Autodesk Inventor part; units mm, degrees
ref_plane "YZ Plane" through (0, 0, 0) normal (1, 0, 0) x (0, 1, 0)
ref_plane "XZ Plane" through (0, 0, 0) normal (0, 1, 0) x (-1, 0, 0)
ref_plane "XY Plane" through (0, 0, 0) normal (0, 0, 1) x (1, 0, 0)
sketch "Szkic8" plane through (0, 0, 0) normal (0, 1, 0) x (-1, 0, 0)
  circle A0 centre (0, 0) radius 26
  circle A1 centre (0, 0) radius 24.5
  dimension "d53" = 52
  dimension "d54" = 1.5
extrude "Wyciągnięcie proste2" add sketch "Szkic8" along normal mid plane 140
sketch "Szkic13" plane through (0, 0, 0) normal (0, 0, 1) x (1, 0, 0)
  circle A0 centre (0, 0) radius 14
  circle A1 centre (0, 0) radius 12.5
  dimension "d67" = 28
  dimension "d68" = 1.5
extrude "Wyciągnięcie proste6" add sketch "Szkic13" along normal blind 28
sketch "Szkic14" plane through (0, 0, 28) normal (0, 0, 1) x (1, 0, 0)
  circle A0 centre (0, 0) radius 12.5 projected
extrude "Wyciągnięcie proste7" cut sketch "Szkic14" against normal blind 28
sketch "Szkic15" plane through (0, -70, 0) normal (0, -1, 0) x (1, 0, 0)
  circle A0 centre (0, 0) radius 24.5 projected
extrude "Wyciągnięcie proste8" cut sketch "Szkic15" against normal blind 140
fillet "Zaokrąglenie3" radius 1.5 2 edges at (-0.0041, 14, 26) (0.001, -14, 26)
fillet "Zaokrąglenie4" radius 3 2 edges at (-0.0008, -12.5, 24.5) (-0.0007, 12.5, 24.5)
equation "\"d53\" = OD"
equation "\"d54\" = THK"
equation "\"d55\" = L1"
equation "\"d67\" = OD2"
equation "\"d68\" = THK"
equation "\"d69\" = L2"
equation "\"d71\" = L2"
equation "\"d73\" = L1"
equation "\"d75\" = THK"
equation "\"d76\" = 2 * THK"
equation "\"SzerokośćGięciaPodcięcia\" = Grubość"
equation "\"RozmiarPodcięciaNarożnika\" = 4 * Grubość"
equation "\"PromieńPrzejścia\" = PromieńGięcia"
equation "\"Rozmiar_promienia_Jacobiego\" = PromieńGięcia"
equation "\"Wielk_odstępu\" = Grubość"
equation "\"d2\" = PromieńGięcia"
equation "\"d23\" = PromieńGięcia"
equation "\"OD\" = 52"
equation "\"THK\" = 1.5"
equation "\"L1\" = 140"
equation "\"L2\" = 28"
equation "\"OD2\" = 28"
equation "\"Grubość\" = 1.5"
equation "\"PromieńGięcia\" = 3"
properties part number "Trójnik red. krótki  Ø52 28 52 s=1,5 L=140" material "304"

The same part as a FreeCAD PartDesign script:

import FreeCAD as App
import Part
import Sketcher
Q = App.Units.Quantity


def edges_at(feature, points):
    """Names of the edges that pass closest to the given points."""
    edges = feature.Shape.Edges
    near = lambda p: min(range(len(edges)), key=lambda i: edges[i].distToShape(Part.Vertex(*p))[0])
    return sorted({f"Edge{near(p) + 1}" for p in points})

doc = App.newDocument("Part")
body = doc.addObject("PartDesign::Body", "Body")

sketch1 = body.newObject("Sketcher::SketchObject", "Sketch")
sketch1.AttachmentSupport = (doc.getObject("XZ_Plane"), [""])
sketch1.MapMode = "FlatFace"
sketch1.addGeometry(Part.Circle(App.Vector(0, 0, 0), App.Vector(0, 0, 1), 26), False)
sketch1.addGeometry(Part.Circle(App.Vector(0, 0, 0), App.Vector(0, 0, 1), 24), False)
sketch1.addConstraint(Sketcher.Constraint("Coincident", 0, 3, -1, 1))
sketch1.addConstraint(Sketcher.Constraint("Coincident", 1, 3, -1, 1))
sketch1.addConstraint(Sketcher.Constraint("Diameter", 0, Q("52 mm")))
sketch1.addConstraint(Sketcher.Constraint("Diameter", 1, Q("49 mm")))
pad1 = body.newObject("PartDesign::Pad", "Pad")
pad1.Profile = sketch1
pad1.Length = 140
pad1.Midplane = True

sketch2 = body.newObject("Sketcher::SketchObject", "Sketch001")
sketch2.AttachmentSupport = (doc.getObject("XY_Plane"), [""])
sketch2.MapMode = "FlatFace"
sketch2.addGeometry(Part.Circle(App.Vector(0, 0, 0), App.Vector(0, 0, 1), 14), False)
sketch2.addGeometry(Part.Circle(App.Vector(0, 0, 0), App.Vector(0, 0, 1), 12), False)
sketch2.addConstraint(Sketcher.Constraint("Coincident", 0, 3, -1, 1))
sketch2.addConstraint(Sketcher.Constraint("Coincident", 1, 3, -1, 1))
sketch2.addConstraint(Sketcher.Constraint("Diameter", 0, Q("28 mm")))
sketch2.addConstraint(Sketcher.Constraint("Diameter", 1, Q("25 mm")))
pad2 = body.newObject("PartDesign::Pad", "Pad001")
pad2.Profile = sketch2
pad2.Length = 28

sketch3 = body.newObject("Sketcher::SketchObject", "Sketch002")
sketch3.AttachmentSupport = (doc.getObject("XY_Plane"), [""])
sketch3.MapMode = "FlatFace"
sketch3.AttachmentOffset = App.Placement(App.Vector(0, 0, 28), App.Rotation())
sketch3.addGeometry(Part.Circle(App.Vector(0, 0, 0), App.Vector(0, 0, 1), 12), False)
sketch3.addConstraint(Sketcher.Constraint("Coincident", 0, 3, -1, 1))
sketch3.addConstraint(Sketcher.Constraint("Diameter", 0, Q("25 mm")))
pocket1 = body.newObject("PartDesign::Pocket", "Pocket")
pocket1.Profile = sketch3
pocket1.Length = 28

sketch4 = body.newObject("Sketcher::SketchObject", "Sketch003")
sketch4.AttachmentSupport = (doc.getObject("XZ_Plane"), [""])
sketch4.MapMode = "FlatFace"
sketch4.AttachmentOffset = App.Placement(App.Vector(0, 0, 70), App.Rotation())
sketch4.addGeometry(Part.Circle(App.Vector(0, 0, 0), App.Vector(0, 0, 1), 24), False)
sketch4.addConstraint(Sketcher.Constraint("Coincident", 0, 3, -1, 1))
sketch4.addConstraint(Sketcher.Constraint("Diameter", 0, Q("49 mm")))
pocket2 = body.newObject("PartDesign::Pocket", "Pocket001")
pocket2.Profile = sketch4
pocket2.Length = 140
doc.recompute()

fillet = body.newObject("PartDesign::Fillet", "Fillet")
fillet.Base = (pocket2, edges_at(pocket2, [(-0.004, 14, 26), (0.001, -14, 26)]))
fillet.Radius = 1.5
doc.recompute()

fillet2 = body.newObject("PartDesign::Fillet", "Fillet001")
fillet2.Base = (fillet, edges_at(fillet, [(-0.001, -12.5, 24.5), (-0.001, 12.5, 24.5)]))
fillet2.Radius = 3

doc.recompute()
